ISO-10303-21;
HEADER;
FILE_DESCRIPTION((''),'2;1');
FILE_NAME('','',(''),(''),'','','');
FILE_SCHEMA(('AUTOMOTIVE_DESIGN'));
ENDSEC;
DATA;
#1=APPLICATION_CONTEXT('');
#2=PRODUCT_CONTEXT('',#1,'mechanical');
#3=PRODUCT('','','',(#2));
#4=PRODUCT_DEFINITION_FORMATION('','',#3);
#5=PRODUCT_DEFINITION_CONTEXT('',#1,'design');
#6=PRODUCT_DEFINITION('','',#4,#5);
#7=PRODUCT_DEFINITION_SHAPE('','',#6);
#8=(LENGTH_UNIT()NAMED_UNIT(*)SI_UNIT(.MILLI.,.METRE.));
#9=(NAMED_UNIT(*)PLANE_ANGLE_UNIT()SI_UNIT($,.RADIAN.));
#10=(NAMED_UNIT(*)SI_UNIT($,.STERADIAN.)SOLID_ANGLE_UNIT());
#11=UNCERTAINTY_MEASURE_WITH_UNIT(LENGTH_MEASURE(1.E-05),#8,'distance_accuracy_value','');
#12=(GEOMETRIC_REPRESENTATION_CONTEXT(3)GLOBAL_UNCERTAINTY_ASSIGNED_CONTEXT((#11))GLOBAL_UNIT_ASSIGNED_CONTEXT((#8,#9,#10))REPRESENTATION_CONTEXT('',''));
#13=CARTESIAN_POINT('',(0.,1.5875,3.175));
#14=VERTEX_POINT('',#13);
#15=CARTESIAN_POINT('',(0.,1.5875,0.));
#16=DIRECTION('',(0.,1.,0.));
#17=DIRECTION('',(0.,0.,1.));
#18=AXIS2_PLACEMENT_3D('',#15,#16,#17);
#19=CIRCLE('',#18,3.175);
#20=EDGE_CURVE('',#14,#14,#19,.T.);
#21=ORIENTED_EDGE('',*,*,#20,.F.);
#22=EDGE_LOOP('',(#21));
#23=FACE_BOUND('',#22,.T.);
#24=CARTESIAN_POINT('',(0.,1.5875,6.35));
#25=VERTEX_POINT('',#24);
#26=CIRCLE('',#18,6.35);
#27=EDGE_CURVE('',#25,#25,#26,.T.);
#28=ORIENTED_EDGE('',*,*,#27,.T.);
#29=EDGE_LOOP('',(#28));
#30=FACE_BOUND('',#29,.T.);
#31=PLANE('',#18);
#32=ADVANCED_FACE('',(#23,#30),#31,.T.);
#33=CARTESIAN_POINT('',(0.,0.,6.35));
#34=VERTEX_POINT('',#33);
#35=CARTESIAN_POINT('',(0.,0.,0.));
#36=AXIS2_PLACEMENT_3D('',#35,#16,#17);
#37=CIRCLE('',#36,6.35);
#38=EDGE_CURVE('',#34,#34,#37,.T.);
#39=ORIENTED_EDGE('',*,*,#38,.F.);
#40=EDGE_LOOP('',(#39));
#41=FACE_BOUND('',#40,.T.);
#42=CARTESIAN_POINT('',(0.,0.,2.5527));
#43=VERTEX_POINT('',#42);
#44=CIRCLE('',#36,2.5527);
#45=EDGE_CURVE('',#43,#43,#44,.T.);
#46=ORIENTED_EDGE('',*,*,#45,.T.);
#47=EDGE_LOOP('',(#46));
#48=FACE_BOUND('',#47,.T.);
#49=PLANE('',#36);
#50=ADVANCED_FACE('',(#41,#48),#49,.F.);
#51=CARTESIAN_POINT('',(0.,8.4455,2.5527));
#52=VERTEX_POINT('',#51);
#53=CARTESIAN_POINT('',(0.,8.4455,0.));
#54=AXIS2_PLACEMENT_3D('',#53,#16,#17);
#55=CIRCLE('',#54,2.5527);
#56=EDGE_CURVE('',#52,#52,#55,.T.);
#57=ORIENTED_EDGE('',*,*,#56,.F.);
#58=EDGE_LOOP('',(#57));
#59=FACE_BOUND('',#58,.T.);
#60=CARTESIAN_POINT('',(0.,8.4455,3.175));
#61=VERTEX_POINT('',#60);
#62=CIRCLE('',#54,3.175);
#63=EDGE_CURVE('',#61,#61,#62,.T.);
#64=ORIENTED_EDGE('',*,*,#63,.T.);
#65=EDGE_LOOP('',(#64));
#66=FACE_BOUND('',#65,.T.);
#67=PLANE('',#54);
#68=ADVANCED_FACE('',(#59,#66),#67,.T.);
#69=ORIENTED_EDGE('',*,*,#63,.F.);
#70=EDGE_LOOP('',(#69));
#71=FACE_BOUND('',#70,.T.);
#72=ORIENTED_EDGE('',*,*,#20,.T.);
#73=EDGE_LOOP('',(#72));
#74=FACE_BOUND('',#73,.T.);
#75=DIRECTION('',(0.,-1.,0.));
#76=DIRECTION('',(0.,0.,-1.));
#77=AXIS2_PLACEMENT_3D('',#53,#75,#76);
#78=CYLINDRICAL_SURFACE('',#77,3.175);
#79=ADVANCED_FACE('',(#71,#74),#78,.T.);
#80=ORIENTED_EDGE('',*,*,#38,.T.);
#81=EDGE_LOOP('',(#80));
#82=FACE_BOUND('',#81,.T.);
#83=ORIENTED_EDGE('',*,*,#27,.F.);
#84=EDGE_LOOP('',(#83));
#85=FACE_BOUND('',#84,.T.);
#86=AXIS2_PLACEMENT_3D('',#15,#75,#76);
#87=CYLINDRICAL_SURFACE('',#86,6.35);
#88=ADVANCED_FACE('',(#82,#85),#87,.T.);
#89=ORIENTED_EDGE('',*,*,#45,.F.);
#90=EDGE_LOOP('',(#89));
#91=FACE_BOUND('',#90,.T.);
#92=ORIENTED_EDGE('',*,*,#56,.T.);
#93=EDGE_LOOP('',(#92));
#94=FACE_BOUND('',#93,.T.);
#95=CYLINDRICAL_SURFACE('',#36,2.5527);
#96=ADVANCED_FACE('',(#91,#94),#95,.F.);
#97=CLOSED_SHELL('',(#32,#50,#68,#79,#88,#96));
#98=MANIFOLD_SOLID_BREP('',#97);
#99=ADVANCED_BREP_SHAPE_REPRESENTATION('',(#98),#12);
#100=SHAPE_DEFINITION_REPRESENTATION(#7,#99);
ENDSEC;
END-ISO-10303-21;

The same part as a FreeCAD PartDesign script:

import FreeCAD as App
import Part
import Sketcher

V = App.Vector
Q = App.Units.Quantity

doc = App.newDocument("Part")
body = doc.addObject("PartDesign::Body", "Body")

sketch1 = doc.addObject("Sketcher::SketchObject", "Sketch")
body.addObject(sketch1)
sketch1.AttachmentSupport = (doc.XZ_Plane, [""])
sketch1.MapMode = "FlatFace"
sketch1.addGeometry(Part.Circle(V(0, 0, 0), V(0, 0, 1), 6), False)
sketch1.addConstraint([
    Sketcher.Constraint("Coincident", 0, 3, -1, 1),
    Sketcher.Constraint("Diameter", 0, Q("0.5 in")),
])
pad1 = doc.addObject("PartDesign::Pad", "Pad")
body.addObject(pad1)
pad1.Profile = sketch1
pad1.Length = Q("0.0625 in")
pad1.Reversed = True

sketch2 = doc.addObject("Sketcher::SketchObject", "Sketch001")
body.addObject(sketch2)
sketch2.AttachmentSupport = (doc.XZ_Plane, [""])
sketch2.MapMode = "FlatFace"
sketch2.AttachmentOffset = App.Placement(V(0, 0, -0.0625 * 25.4), App.Rotation())
sketch2.addGeometry(Part.Circle(V(0, 0, 0), V(0, 0, 1), 3.2), False)
sketch2.addConstraint([
    Sketcher.Constraint("Coincident", 0, 3, -1, 1),
    Sketcher.Constraint("Diameter", 0, Q("0.25 in")),
])
pad2 = doc.addObject("PartDesign::Pad", "Pad001")
body.addObject(pad2)
pad2.Profile = sketch2
pad2.Length = Q("0.27 in")
pad2.Reversed = True

sketch3 = doc.addObject("Sketcher::SketchObject", "Sketch002")
body.addObject(sketch3)
sketch3.AttachmentSupport = (doc.XZ_Plane, [""])
sketch3.MapMode = "FlatFace"
sketch3.AttachmentOffset = App.Placement(V(0, 0, -0.3325 * 25.4), App.Rotation())
sketch3.addGeometry(Part.Circle(V(0, 0, 0), V(0, 0, 1), 2.6), False)
sketch3.addConstraint([
    Sketcher.Constraint("Coincident", 0, 3, -1, 1),
    Sketcher.Constraint("Diameter", 0, Q("0.201 in")),
])
pocket1 = doc.addObject("PartDesign::Pocket", "Pocket")
body.addObject(pocket1)
pocket1.Profile = sketch3
pocket1.Type = "ThroughAll"
pocket1.Reversed = True

doc.recompute()
